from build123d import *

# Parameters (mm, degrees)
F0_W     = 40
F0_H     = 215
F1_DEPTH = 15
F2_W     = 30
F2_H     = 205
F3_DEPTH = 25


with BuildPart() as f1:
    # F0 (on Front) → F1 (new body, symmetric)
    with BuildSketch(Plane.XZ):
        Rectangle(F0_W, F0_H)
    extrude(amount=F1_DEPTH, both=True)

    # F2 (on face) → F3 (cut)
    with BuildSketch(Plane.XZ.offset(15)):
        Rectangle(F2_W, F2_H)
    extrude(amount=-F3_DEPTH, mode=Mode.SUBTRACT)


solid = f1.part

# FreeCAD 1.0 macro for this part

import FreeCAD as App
import Part
import Sketcher
from FreeCAD import Vector


def add_polygon(sketch, points):
    """Adds a closed chain of lines whose ends are joined by coincident constraints."""
    first, n = sketch.GeometryCount, len(points)
    for a, b in zip(points, points[1:] + points[:1]):
        sketch.addGeometry(Part.LineSegment(App.Vector(*a, 0), App.Vector(*b, 0)), False)
    for i in range(n):
        sketch.addConstraint(Sketcher.Constraint("Coincident", first + i, 2, first + (i + 1) % n, 1))

doc = App.newDocument("Part")
body = doc.addObject("PartDesign::Body", "Body")

sketch1 = body.newObject("Sketcher::SketchObject", "Sketch")
sketch1.AttachmentSupport = (doc.getObject("XZ_Plane"), [""])
sketch1.MapMode = "FlatFace"
add_polygon(sketch1, [(-20, 108), (-20, -108), (20, -108), (20, 108)])
sketch1.addConstraint([
    Sketcher.Constraint("Vertical", 0),
    Sketcher.Constraint("Horizontal", 1),
    Sketcher.Constraint("Vertical", 2),
    Sketcher.Constraint("Horizontal", 3),
    Sketcher.Constraint("Symmetric", 0, 2, 2, 2, -1, 1),
    Sketcher.Constraint("DistanceX", 1, 1, 1, 2, 40.0),
    Sketcher.Constraint("DistanceY", 0, 2, 0, 1, 215.0),
])
pad1 = body.newObject("PartDesign::Pad", "Pad")
pad1.Profile = sketch1
pad1.Length = 30
pad1.Midplane = True

sketch2 = body.newObject("Sketcher::SketchObject", "Sketch001")
sketch2.AttachmentSupport = (doc.getObject("XZ_Plane"), [""])
sketch2.MapMode = "FlatFace"
sketch2.AttachmentOffset = App.Placement(Vector(0, 0, 15), App.Rotation())
add_polygon(sketch2, [(-15, 102), (-15, -102), (15, -102), (15, 102)])
sketch2.addConstraint([
    Sketcher.Constraint("Vertical", 0),
    Sketcher.Constraint("Horizontal", 1),
    Sketcher.Constraint("Vertical", 2),
    Sketcher.Constraint("Horizontal", 3),
    Sketcher.Constraint("Symmetric", 0, 2, 2, 2, -1, 1),
    Sketcher.Constraint("DistanceX", 1, 1, 1, 2, 30.0),
    Sketcher.Constraint("DistanceY", 0, 2, 0, 1, 205.0),
])
pocket1 = body.newObject("PartDesign::Pocket", "Pocket")
pocket1.Profile = sketch2
pocket1.Length = 25

doc.recompute()
